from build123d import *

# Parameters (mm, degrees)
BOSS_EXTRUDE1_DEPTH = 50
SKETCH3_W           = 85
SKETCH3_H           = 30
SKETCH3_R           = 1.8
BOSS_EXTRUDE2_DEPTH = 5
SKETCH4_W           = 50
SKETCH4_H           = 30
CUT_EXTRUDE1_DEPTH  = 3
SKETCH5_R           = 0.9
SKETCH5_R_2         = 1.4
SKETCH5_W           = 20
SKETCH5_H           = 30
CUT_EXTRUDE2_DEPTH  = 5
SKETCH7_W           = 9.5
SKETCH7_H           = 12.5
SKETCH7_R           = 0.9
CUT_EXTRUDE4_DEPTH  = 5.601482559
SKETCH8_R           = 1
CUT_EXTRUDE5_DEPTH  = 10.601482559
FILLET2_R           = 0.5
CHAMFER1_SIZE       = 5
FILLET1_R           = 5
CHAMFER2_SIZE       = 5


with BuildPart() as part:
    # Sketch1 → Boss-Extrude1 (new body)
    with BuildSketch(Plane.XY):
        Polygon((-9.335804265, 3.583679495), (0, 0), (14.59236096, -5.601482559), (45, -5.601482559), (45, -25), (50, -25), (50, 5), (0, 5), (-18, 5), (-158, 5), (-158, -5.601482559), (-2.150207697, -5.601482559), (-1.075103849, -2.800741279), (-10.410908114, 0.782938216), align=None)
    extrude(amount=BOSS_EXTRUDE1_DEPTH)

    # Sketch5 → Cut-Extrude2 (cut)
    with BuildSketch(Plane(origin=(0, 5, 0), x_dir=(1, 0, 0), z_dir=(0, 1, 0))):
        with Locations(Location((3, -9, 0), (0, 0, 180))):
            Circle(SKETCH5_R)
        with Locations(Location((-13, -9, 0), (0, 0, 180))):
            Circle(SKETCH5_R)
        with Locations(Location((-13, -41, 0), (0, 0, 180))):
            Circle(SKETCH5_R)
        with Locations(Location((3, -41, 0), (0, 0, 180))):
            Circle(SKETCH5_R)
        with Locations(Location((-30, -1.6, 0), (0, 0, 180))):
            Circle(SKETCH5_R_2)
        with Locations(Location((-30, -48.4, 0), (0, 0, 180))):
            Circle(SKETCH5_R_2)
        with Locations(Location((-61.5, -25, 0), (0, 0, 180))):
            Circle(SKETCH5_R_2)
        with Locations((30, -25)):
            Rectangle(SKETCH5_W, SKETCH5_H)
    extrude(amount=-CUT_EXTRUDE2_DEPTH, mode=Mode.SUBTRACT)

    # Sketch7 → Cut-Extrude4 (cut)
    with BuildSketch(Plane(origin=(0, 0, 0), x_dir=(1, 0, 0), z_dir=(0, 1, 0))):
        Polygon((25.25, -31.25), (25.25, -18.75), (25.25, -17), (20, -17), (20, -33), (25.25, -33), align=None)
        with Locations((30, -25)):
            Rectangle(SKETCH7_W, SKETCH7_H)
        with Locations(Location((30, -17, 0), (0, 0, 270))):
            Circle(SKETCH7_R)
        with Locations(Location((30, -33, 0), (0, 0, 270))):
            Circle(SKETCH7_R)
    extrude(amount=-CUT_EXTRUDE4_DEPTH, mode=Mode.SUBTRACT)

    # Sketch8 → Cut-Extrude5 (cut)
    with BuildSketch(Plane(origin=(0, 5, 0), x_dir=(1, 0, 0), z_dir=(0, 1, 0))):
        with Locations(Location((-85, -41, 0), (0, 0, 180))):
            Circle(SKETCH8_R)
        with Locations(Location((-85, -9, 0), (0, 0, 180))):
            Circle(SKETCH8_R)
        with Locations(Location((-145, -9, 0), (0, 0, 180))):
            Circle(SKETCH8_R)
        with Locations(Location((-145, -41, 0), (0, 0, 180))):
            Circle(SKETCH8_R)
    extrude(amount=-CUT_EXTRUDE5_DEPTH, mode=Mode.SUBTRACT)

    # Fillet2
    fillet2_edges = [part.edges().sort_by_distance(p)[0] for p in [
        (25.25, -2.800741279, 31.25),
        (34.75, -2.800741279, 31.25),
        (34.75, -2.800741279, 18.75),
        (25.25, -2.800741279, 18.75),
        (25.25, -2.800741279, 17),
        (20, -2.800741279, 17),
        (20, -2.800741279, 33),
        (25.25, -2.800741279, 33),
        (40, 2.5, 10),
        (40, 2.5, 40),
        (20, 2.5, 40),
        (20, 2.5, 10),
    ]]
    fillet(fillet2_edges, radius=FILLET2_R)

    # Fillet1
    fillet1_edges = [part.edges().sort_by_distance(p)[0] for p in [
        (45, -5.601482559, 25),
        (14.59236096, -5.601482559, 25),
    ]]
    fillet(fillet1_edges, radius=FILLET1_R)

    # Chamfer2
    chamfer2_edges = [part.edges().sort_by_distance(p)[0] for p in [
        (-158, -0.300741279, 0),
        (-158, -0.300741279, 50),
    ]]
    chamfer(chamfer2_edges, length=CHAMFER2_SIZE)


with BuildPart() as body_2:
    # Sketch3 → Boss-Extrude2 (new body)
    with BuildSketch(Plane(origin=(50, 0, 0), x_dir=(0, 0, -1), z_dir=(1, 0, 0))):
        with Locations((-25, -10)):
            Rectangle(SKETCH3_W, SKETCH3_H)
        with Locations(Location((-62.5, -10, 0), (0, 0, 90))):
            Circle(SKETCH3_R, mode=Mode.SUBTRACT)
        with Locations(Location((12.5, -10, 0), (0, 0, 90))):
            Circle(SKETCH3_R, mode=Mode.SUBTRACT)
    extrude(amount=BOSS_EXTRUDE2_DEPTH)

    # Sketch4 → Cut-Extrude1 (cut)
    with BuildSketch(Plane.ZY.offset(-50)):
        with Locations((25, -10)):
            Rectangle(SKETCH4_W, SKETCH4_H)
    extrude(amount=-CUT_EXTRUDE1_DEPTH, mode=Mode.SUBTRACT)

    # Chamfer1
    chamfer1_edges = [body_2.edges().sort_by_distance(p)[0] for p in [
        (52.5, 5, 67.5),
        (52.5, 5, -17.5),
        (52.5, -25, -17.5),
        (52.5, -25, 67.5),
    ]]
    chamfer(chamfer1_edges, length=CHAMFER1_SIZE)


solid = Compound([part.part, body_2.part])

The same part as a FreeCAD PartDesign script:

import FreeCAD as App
import Part
import Sketcher

V = App.Vector
Q = App.Units.Quantity


def edges_at(feature, points):
    """Names of the edges that pass closest to the given points."""
    edges = feature.Shape.Edges
    near = lambda p: min(range(len(edges)), key=lambda i: edges[i].distToShape(Part.Vertex(*p))[0])
    return sorted({f"Edge{near(p) + 1}" for p in points})


def add_polygon(sketch, points):
    """Adds a closed chain of lines whose ends are joined by coincident constraints."""
    first, n = sketch.GeometryCount, len(points)
    for a, b in zip(points, points[1:] + points[:1]):
        sketch.addGeometry(Part.LineSegment(App.Vector(*a, 0), App.Vector(*b, 0)), False)
    for i in range(n):
        sketch.addConstraint(Sketcher.Constraint("Coincident", first + i, 2, first + (i + 1) % n, 1))

doc = App.newDocument("Part")
body = doc.addObject("PartDesign::Body", "Body")

sketch1 = body.newObject("Sketcher::SketchObject", "Sketch")
sketch1.AttachmentSupport = (doc.getObject("XY_Plane"), [""])
sketch1.MapMode = "FlatFace"
add_polygon(sketch1, [(-9.3, 3.6), (0, 0), (14.6, -5.6), (45, -5.6), (45, -25), (50, -25), (50, 5), (-158, 5), (-158, -5.6), (-2.2, -5.6), (-1.1, -2.8), (-10.4, 0.8)])
sketch1.addConstraint(Sketcher.Constraint("Horizontal", 2))
sketch1.addConstraint(Sketcher.Constraint("Vertical", 3))
sketch1.addConstraint(Sketcher.Constraint("Horizontal", 4))
sketch1.addConstraint(Sketcher.Constraint("Vertical", 5))
sketch1.addConstraint(Sketcher.Constraint("Horizontal", 6))
sketch1.addConstraint(Sketcher.Constraint("Vertical", 7))
sketch1.addConstraint(Sketcher.Constraint("Horizontal", 8))
sketch1.addConstraint(Sketcher.Constraint("Coincident", 0, 2, -1, 1))
sketch1.addConstraint(Sketcher.Constraint("Parallel", 0, 1))
sketch1.addConstraint(Sketcher.Constraint("Perpendicular", 1, 9))
sketch1.addConstraint(Sketcher.Constraint("Perpendicular", 9, 10))
sketch1.addConstraint(Sketcher.Constraint("Perpendicular", 10, 11))
sketch1.addConstraint(Sketcher.Constraint("Horizontal", 2, 2, 7, 2))
sketch1.addConstraint(Sketcher.Constraint("Equal", 0, 10))
sketch1.addConstraint(Sketcher.Constraint("Equal", 9, 11))
sketch1.addConstraint(Sketcher.Constraint("DistanceX", 4, 1, 4, 2, 5.0))
sketch1.addConstraint(Sketcher.Constraint("DistanceX", 6, 2, 6, 1, 208.0))
sketch1.addConstraint(Sketcher.Constraint("DistanceY", 5, 1, 5, 2, 30.0))
sketch1.addConstraint(Sketcher.Constraint("Angle", 0, Q("-21 deg")))
sketch1.addConstraint(Sketcher.Constraint("Distance", 0, 10.0))
sketch1.addConstraint(Sketcher.Constraint("Distance", 9, 3.0))
sketch1.addConstraint(Sketcher.Constraint("DistanceX", -1, 1, 2, 2, 45.0))
sketch1.addConstraint(Sketcher.Constraint("DistanceY", 3, 2, -1, 1, 25.0))
pad1 = body.newObject("PartDesign::Pad", "Pad")
pad1.Profile = sketch1
pad1.Length = 50

sketch2 = body.newObject("Sketcher::SketchObject", "Sketch001")
sketch2.AttachmentSupport = (doc.getObject("XZ_Plane"), [""])
sketch2.MapMode = "FlatFace"
sketch2.AttachmentOffset = App.Placement(V(0, 0, -5), App.Rotation())
sketch2.addGeometry(Part.Circle(V(3, 9, 0), V(0, 0, 1), 0.9), False)
sketch2.addGeometry(Part.Circle(V(-13, 9, 0), V(0, 0, 1), 0.9), False)
sketch2.addGeometry(Part.Circle(V(-13, 41, 0), V(0, 0, 1), 0.9), False)
sketch2.addGeometry(Part.Circle(V(3, 41, 0), V(0, 0, 1), 0.9), False)
sketch2.addGeometry(Part.Circle(V(-30, 1.6, 0), V(0, 0, 1), 1.4), False)
sketch2.addGeometry(Part.Circle(V(-30, 48.4, 0), V(0, 0, 1), 1.4), False)
sketch2.addGeometry(Part.Circle(V(-61.5, 25, 0), V(0, 0, 1), 1.4), False)
add_polygon(sketch2, [(20, 10), (20, 40), (40, 40), (40, 10)])
sketch2.addConstraint(Sketcher.Constraint("Vertical", 7))
sketch2.addConstraint(Sketcher.Constraint("Horizontal", 8))
sketch2.addConstraint(Sketcher.Constraint("Vertical", 9))
sketch2.addConstraint(Sketcher.Constraint("Horizontal", 10))
sketch2.addConstraint(Sketcher.Constraint("Equal", 0, 1))
sketch2.addConstraint(Sketcher.Constraint("Equal", 1, 2))
sketch2.addConstraint(Sketcher.Constraint("Equal", 2, 3))
sketch2.addConstraint(Sketcher.Constraint("Equal", 4, 5))
sketch2.addConstraint(Sketcher.Constraint("Equal", 5, 6))
sketch2.addConstraint(Sketcher.Constraint("Horizontal", 0, 3, 1, 3))
sketch2.addConstraint(Sketcher.Constraint("Horizontal", 2, 3, 3, 3))
sketch2.addConstraint(Sketcher.Constraint("Vertical", 1, 3, 2, 3))
sketch2.addConstraint(Sketcher.Constraint("Vertical", 0, 3, 3, 3))
sketch2.addConstraint(Sketcher.Constraint("Vertical", 4, 3, 5, 3))
sketch2.addConstraint(Sketcher.Constraint("Diameter", 0, 1.8))
sketch2.addConstraint(Sketcher.Constraint("Diameter", 4, 2.8))
sketch2.addConstraint(Sketcher.Constraint("DistanceX", 8, 1, 8, 2, 20.0))
sketch2.addConstraint(Sketcher.Constraint("DistanceY", 7, 1, 7, 2, 30.0))
sketch2.addConstraint(Sketcher.Constraint("DistanceX", -1, 1, 0, 3, 3.0))
sketch2.addConstraint(Sketcher.Constraint("DistanceY", -1, 1, 0, 3, 9.0))
sketch2.addConstraint(Sketcher.Constraint("DistanceX", 1, 3, -1, 1, 13.0))
sketch2.addConstraint(Sketcher.Constraint("DistanceY", -1, 1, 2, 3, 41.0))
sketch2.addConstraint(Sketcher.Constraint("DistanceX", 4, 3, -1, 1, 30.0))
sketch2.addConstraint(Sketcher.Constraint("DistanceY", -1, 1, 6, 3, 25.0))
sketch2.addConstraint(Sketcher.Constraint("DistanceX", -1, 1, 7, 2, 20.0))
sketch2.addConstraint(Sketcher.Constraint("DistanceY", -1, 1, 7, 2, 40.0))
sketch2.addConstraint(Sketcher.Constraint("DistanceY", -1, 1, 4, 3, 1.6))
sketch2.addConstraint(Sketcher.Constraint("DistanceY", -1, 1, 5, 3, 48.4))
sketch2.addConstraint(Sketcher.Constraint("DistanceX", 6, 3, -1, 1, 61.5))
pocket1 = body.newObject("PartDesign::Pocket", "Pocket")
pocket1.Profile = sketch2
pocket1.Length = 5
pocket1.Reversed = True

sketch3 = body.newObject("Sketcher::SketchObject", "Sketch002")
sketch3.AttachmentSupport = (doc.getObject("XZ_Plane"), [""])
sketch3.MapMode = "FlatFace"
add_polygon(sketch3, [(25.2, 17), (20, 17), (20, 33), (25.2, 33), (25.2, 31.2), (34.8, 31.2), (34.8, 18.8), (25.2, 18.8)])
sketch3.addGeometry(Part.Circle(V(30, 17, 0), V(0, 0, 1), 0.9), False)
sketch3.addGeometry(Part.Circle(V(30, 33, 0), V(0, 0, 1), 0.9), False)
sketch3.addConstraint(Sketcher.Constraint("Horizontal", 0))
sketch3.addConstraint(Sketcher.Constraint("Vertical", 1))
sketch3.addConstraint(Sketcher.Constraint("Horizontal", 2))
sketch3.addConstraint(Sketcher.Constraint("Vertical", 3))
sketch3.addConstraint(Sketcher.Constraint("Horizontal", 4))
sketch3.addConstraint(Sketcher.Constraint("Vertical", 5))
sketch3.addConstraint(Sketcher.Constraint("Horizontal", 6))
sketch3.addConstraint(Sketcher.Constraint("Vertical", 7))
sketch3.addConstraint(Sketcher.Constraint("Equal", 8, 9))
sketch3.addConstraint(Sketcher.Constraint("Horizontal", 8, 3, 0, 2))
sketch3.addConstraint(Sketcher.Constraint("Horizontal", 9, 3, 1, 2))
sketch3.addConstraint(Sketcher.Constraint("Vertical", 8, 3, 9, 3))
sketch3.addConstraint(Sketcher.Constraint("Vertical", 3, 2, 6, 2))
sketch3.addConstraint(Sketcher.Constraint("Equal", 3, 7))
sketch3.addConstraint(Sketcher.Constraint("Diameter", 8, 1.8))
sketch3.addConstraint(Sketcher.Constraint("DistanceY", 1, 1, 1, 2, 16.0))
sketch3.addConstraint(Sketcher.Constraint("DistanceX", 4, 1, 4, 2, 9.5))
sketch3.addConstraint(Sketcher.Constraint("DistanceY", 5, 2, 5, 1, 12.5))
sketch3.addConstraint(Sketcher.Constraint("DistanceX", -1, 1, 8, 3, 30.0))
sketch3.addConstraint(Sketcher.Constraint("DistanceY", -1, 1, 8, 3, 17.0))
sketch3.addConstraint(Sketcher.Constraint("DistanceX", -1, 1, 0, 2, 20.0))
sketch3.addConstraint(Sketcher.Constraint("DistanceX", 0, 2, 0, 1, 5.25))
pocket2 = body.newObject("PartDesign::Pocket", "Pocket001")
pocket2.Profile = sketch3
pocket2.Length = 5.601483
pocket2.Reversed = True

sketch4 = body.newObject("Sketcher::SketchObject", "Sketch003")
sketch4.AttachmentSupport = (doc.getObject("XZ_Plane"), [""])
sketch4.MapMode = "FlatFace"
sketch4.AttachmentOffset = App.Placement(V(0, 0, -5), App.Rotation())
sketch4.addGeometry(Part.Circle(V(-85, 41, 0), V(0, 0, 1), 1), False)
sketch4.addGeometry(Part.Circle(V(-85, 9, 0), V(0, 0, 1), 1), False)
sketch4.addGeometry(Part.Circle(V(-145, 9, 0), V(0, 0, 1), 1), False)
sketch4.addGeometry(Part.Circle(V(-145, 41, 0), V(0, 0, 1), 1), False)
sketch4.addConstraint(Sketcher.Constraint("Equal", 0, 1))
sketch4.addConstraint(Sketcher.Constraint("Equal", 1, 2))
sketch4.addConstraint(Sketcher.Constraint("Equal", 2, 3))
sketch4.addConstraint(Sketcher.Constraint("Horizontal", 1, 3, 2, 3))
sketch4.addConstraint(Sketcher.Constraint("Horizontal", 0, 3, 3, 3))
sketch4.addConstraint(Sketcher.Constraint("Vertical", 0, 3, 1, 3))
sketch4.addConstraint(Sketcher.Constraint("Vertical", 2, 3, 3, 3))
sketch4.addConstraint(Sketcher.Constraint("Diameter", 0, 2.0))
sketch4.addConstraint(Sketcher.Constraint("DistanceX", 0, 3, -1, 1, 85.0))
sketch4.addConstraint(Sketcher.Constraint("DistanceY", -1, 1, 0, 3, 41.0))
sketch4.addConstraint(Sketcher.Constraint("DistanceY", -1, 1, 1, 3, 9.0))
sketch4.addConstraint(Sketcher.Constraint("DistanceX", 2, 3, -1, 1, 145.0))
pocket3 = body.newObject("PartDesign::Pocket", "Pocket002")
pocket3.Profile = sketch4
pocket3.Length = 10.601483
pocket3.Reversed = True
doc.recompute()

fillet = body.newObject("PartDesign::Fillet", "Fillet")
fillet.Base = (pocket3, edges_at(pocket3, [
    (25.25, -2.801, 31.25),
    (34.75, -2.801, 31.25),
    (34.75, -2.801, 18.75),
    (25.25, -2.801, 18.75),
    (25.25, -2.801, 17),
    (20, -2.801, 17),
    (20, -2.801, 33),
    (25.25, -2.801, 33),
    (40, 2.5, 10),
    (40, 2.5, 40),
    (20, 2.5, 40),
    (20, 2.5, 10),
]))
fillet.Radius = 0.5
doc.recompute()

fillet2 = body.newObject("PartDesign::Fillet", "Fillet001")
fillet2.Base = (fillet, edges_at(fillet, [(45, -5.601, 25), (14.592, -5.601, 25)]))
fillet2.Radius = 5
doc.recompute()

chamfer = body.newObject("PartDesign::Chamfer", "Chamfer")
chamfer.Base = (fillet2, edges_at(fillet2, [(-158, -0.301, 0), (-158, -0.301, 50)]))
chamfer.Size = 5
body2 = doc.addObject("PartDesign::Body", "Body001")

sketch5 = body2.newObject("Sketcher::SketchObject", "Sketch004")
sketch5.AttachmentSupport = (doc.getObject("YZ_Plane001"), [""])
sketch5.MapMode = "FlatFace"
sketch5.AttachmentOffset = App.Placement(V(0, 0, 50), App.Rotation())
add_polygon(sketch5, [(5, 67.5), (-25, 67.5), (-25, -17.5), (5, -17.5)])
sketch5.addGeometry(Part.Circle(V(-10, 62.5, 0), V(0, 0, 1), 1.8), False)
sketch5.addGeometry(Part.Circle(V(-10, -12.5, 0), V(0, 0, 1), 1.8), False)
sketch5.addConstraint(Sketcher.Constraint("Horizontal", 0))
sketch5.addConstraint(Sketcher.Constraint("Vertical", 1))
sketch5.addConstraint(Sketcher.Constraint("Horizontal", 2))
sketch5.addConstraint(Sketcher.Constraint("Vertical", 3))
sketch5.addConstraint(Sketcher.Constraint("Equal", 4, 5))
sketch5.addConstraint(Sketcher.Constraint("Vertical", 4, 3, 5, 3))
sketch5.addConstraint(Sketcher.Constraint("Diameter", 4, 3.6))
sketch5.addConstraint(Sketcher.Constraint("DistanceX", 0, 2, 0, 1, 30.0))
sketch5.addConstraint(Sketcher.Constraint("DistanceY", 1, 2, 1, 1, 85.0))
sketch5.addConstraint(Sketcher.Constraint("DistanceX", 4, 3, -1, 1, 10.0))
sketch5.addConstraint(Sketcher.Constraint("DistanceX", 0, 2, -1, 1, 25.0))
sketch5.addConstraint(Sketcher.Constraint("DistanceY", 5, 3, 4, 3, 75.0))
sketch5.addConstraint(Sketcher.Constraint("DistanceY", 4, 3, 0, 2, 5.0))
sketch5.addConstraint(Sketcher.Constraint("DistanceY", -1, 1, 4, 3, 62.5))
pad2 = body2.newObject("PartDesign::Pad", "Pad001")
pad2.Profile = sketch5
pad2.Length = 5

sketch6 = body2.newObject("Sketcher::SketchObject", "Sketch005")
sketch6.AttachmentSupport = (doc.getObject("YZ_Plane001"), [""])
sketch6.MapMode = "FlatFace"
sketch6.AttachmentOffset = App.Placement(V(0, 0, 50), App.Rotation())
add_polygon(sketch6, [(5, 0), (-25, 0), (-25, 50), (5, 50)])
sketch6.addConstraint(Sketcher.Constraint("Horizontal", 0))
sketch6.addConstraint(Sketcher.Constraint("Vertical", 1))
sketch6.addConstraint(Sketcher.Constraint("Horizontal", 2))
sketch6.addConstraint(Sketcher.Constraint("Vertical", 3))
sketch6.addConstraint(Sketcher.Constraint("PointOnObject", 0, 2, -1))
sketch6.addConstraint(Sketcher.Constraint("DistanceX", 0, 2, 0, 1, 30.0))
sketch6.addConstraint(Sketcher.Constraint("DistanceY", 1, 1, 1, 2, 50.0))
sketch6.addConstraint(Sketcher.Constraint("DistanceX", 0, 2, -1, 1, 25.0))
pocket4 = body2.newObject("PartDesign::Pocket", "Pocket003")
pocket4.Profile = sketch6
pocket4.Length = 3
pocket4.Reversed = True
doc.recompute()

chamfer2 = body2.newObject("PartDesign::Chamfer", "Chamfer001")
chamfer2.Base = (pocket4, edges_at(pocket4, [
    (52.5, 5, 67.5),
    (52.5, 5, -17.5),
    (52.5, -25, -17.5),
    (52.5, -25, 67.5),
]))
chamfer2.Size = 5

doc.recompute()
